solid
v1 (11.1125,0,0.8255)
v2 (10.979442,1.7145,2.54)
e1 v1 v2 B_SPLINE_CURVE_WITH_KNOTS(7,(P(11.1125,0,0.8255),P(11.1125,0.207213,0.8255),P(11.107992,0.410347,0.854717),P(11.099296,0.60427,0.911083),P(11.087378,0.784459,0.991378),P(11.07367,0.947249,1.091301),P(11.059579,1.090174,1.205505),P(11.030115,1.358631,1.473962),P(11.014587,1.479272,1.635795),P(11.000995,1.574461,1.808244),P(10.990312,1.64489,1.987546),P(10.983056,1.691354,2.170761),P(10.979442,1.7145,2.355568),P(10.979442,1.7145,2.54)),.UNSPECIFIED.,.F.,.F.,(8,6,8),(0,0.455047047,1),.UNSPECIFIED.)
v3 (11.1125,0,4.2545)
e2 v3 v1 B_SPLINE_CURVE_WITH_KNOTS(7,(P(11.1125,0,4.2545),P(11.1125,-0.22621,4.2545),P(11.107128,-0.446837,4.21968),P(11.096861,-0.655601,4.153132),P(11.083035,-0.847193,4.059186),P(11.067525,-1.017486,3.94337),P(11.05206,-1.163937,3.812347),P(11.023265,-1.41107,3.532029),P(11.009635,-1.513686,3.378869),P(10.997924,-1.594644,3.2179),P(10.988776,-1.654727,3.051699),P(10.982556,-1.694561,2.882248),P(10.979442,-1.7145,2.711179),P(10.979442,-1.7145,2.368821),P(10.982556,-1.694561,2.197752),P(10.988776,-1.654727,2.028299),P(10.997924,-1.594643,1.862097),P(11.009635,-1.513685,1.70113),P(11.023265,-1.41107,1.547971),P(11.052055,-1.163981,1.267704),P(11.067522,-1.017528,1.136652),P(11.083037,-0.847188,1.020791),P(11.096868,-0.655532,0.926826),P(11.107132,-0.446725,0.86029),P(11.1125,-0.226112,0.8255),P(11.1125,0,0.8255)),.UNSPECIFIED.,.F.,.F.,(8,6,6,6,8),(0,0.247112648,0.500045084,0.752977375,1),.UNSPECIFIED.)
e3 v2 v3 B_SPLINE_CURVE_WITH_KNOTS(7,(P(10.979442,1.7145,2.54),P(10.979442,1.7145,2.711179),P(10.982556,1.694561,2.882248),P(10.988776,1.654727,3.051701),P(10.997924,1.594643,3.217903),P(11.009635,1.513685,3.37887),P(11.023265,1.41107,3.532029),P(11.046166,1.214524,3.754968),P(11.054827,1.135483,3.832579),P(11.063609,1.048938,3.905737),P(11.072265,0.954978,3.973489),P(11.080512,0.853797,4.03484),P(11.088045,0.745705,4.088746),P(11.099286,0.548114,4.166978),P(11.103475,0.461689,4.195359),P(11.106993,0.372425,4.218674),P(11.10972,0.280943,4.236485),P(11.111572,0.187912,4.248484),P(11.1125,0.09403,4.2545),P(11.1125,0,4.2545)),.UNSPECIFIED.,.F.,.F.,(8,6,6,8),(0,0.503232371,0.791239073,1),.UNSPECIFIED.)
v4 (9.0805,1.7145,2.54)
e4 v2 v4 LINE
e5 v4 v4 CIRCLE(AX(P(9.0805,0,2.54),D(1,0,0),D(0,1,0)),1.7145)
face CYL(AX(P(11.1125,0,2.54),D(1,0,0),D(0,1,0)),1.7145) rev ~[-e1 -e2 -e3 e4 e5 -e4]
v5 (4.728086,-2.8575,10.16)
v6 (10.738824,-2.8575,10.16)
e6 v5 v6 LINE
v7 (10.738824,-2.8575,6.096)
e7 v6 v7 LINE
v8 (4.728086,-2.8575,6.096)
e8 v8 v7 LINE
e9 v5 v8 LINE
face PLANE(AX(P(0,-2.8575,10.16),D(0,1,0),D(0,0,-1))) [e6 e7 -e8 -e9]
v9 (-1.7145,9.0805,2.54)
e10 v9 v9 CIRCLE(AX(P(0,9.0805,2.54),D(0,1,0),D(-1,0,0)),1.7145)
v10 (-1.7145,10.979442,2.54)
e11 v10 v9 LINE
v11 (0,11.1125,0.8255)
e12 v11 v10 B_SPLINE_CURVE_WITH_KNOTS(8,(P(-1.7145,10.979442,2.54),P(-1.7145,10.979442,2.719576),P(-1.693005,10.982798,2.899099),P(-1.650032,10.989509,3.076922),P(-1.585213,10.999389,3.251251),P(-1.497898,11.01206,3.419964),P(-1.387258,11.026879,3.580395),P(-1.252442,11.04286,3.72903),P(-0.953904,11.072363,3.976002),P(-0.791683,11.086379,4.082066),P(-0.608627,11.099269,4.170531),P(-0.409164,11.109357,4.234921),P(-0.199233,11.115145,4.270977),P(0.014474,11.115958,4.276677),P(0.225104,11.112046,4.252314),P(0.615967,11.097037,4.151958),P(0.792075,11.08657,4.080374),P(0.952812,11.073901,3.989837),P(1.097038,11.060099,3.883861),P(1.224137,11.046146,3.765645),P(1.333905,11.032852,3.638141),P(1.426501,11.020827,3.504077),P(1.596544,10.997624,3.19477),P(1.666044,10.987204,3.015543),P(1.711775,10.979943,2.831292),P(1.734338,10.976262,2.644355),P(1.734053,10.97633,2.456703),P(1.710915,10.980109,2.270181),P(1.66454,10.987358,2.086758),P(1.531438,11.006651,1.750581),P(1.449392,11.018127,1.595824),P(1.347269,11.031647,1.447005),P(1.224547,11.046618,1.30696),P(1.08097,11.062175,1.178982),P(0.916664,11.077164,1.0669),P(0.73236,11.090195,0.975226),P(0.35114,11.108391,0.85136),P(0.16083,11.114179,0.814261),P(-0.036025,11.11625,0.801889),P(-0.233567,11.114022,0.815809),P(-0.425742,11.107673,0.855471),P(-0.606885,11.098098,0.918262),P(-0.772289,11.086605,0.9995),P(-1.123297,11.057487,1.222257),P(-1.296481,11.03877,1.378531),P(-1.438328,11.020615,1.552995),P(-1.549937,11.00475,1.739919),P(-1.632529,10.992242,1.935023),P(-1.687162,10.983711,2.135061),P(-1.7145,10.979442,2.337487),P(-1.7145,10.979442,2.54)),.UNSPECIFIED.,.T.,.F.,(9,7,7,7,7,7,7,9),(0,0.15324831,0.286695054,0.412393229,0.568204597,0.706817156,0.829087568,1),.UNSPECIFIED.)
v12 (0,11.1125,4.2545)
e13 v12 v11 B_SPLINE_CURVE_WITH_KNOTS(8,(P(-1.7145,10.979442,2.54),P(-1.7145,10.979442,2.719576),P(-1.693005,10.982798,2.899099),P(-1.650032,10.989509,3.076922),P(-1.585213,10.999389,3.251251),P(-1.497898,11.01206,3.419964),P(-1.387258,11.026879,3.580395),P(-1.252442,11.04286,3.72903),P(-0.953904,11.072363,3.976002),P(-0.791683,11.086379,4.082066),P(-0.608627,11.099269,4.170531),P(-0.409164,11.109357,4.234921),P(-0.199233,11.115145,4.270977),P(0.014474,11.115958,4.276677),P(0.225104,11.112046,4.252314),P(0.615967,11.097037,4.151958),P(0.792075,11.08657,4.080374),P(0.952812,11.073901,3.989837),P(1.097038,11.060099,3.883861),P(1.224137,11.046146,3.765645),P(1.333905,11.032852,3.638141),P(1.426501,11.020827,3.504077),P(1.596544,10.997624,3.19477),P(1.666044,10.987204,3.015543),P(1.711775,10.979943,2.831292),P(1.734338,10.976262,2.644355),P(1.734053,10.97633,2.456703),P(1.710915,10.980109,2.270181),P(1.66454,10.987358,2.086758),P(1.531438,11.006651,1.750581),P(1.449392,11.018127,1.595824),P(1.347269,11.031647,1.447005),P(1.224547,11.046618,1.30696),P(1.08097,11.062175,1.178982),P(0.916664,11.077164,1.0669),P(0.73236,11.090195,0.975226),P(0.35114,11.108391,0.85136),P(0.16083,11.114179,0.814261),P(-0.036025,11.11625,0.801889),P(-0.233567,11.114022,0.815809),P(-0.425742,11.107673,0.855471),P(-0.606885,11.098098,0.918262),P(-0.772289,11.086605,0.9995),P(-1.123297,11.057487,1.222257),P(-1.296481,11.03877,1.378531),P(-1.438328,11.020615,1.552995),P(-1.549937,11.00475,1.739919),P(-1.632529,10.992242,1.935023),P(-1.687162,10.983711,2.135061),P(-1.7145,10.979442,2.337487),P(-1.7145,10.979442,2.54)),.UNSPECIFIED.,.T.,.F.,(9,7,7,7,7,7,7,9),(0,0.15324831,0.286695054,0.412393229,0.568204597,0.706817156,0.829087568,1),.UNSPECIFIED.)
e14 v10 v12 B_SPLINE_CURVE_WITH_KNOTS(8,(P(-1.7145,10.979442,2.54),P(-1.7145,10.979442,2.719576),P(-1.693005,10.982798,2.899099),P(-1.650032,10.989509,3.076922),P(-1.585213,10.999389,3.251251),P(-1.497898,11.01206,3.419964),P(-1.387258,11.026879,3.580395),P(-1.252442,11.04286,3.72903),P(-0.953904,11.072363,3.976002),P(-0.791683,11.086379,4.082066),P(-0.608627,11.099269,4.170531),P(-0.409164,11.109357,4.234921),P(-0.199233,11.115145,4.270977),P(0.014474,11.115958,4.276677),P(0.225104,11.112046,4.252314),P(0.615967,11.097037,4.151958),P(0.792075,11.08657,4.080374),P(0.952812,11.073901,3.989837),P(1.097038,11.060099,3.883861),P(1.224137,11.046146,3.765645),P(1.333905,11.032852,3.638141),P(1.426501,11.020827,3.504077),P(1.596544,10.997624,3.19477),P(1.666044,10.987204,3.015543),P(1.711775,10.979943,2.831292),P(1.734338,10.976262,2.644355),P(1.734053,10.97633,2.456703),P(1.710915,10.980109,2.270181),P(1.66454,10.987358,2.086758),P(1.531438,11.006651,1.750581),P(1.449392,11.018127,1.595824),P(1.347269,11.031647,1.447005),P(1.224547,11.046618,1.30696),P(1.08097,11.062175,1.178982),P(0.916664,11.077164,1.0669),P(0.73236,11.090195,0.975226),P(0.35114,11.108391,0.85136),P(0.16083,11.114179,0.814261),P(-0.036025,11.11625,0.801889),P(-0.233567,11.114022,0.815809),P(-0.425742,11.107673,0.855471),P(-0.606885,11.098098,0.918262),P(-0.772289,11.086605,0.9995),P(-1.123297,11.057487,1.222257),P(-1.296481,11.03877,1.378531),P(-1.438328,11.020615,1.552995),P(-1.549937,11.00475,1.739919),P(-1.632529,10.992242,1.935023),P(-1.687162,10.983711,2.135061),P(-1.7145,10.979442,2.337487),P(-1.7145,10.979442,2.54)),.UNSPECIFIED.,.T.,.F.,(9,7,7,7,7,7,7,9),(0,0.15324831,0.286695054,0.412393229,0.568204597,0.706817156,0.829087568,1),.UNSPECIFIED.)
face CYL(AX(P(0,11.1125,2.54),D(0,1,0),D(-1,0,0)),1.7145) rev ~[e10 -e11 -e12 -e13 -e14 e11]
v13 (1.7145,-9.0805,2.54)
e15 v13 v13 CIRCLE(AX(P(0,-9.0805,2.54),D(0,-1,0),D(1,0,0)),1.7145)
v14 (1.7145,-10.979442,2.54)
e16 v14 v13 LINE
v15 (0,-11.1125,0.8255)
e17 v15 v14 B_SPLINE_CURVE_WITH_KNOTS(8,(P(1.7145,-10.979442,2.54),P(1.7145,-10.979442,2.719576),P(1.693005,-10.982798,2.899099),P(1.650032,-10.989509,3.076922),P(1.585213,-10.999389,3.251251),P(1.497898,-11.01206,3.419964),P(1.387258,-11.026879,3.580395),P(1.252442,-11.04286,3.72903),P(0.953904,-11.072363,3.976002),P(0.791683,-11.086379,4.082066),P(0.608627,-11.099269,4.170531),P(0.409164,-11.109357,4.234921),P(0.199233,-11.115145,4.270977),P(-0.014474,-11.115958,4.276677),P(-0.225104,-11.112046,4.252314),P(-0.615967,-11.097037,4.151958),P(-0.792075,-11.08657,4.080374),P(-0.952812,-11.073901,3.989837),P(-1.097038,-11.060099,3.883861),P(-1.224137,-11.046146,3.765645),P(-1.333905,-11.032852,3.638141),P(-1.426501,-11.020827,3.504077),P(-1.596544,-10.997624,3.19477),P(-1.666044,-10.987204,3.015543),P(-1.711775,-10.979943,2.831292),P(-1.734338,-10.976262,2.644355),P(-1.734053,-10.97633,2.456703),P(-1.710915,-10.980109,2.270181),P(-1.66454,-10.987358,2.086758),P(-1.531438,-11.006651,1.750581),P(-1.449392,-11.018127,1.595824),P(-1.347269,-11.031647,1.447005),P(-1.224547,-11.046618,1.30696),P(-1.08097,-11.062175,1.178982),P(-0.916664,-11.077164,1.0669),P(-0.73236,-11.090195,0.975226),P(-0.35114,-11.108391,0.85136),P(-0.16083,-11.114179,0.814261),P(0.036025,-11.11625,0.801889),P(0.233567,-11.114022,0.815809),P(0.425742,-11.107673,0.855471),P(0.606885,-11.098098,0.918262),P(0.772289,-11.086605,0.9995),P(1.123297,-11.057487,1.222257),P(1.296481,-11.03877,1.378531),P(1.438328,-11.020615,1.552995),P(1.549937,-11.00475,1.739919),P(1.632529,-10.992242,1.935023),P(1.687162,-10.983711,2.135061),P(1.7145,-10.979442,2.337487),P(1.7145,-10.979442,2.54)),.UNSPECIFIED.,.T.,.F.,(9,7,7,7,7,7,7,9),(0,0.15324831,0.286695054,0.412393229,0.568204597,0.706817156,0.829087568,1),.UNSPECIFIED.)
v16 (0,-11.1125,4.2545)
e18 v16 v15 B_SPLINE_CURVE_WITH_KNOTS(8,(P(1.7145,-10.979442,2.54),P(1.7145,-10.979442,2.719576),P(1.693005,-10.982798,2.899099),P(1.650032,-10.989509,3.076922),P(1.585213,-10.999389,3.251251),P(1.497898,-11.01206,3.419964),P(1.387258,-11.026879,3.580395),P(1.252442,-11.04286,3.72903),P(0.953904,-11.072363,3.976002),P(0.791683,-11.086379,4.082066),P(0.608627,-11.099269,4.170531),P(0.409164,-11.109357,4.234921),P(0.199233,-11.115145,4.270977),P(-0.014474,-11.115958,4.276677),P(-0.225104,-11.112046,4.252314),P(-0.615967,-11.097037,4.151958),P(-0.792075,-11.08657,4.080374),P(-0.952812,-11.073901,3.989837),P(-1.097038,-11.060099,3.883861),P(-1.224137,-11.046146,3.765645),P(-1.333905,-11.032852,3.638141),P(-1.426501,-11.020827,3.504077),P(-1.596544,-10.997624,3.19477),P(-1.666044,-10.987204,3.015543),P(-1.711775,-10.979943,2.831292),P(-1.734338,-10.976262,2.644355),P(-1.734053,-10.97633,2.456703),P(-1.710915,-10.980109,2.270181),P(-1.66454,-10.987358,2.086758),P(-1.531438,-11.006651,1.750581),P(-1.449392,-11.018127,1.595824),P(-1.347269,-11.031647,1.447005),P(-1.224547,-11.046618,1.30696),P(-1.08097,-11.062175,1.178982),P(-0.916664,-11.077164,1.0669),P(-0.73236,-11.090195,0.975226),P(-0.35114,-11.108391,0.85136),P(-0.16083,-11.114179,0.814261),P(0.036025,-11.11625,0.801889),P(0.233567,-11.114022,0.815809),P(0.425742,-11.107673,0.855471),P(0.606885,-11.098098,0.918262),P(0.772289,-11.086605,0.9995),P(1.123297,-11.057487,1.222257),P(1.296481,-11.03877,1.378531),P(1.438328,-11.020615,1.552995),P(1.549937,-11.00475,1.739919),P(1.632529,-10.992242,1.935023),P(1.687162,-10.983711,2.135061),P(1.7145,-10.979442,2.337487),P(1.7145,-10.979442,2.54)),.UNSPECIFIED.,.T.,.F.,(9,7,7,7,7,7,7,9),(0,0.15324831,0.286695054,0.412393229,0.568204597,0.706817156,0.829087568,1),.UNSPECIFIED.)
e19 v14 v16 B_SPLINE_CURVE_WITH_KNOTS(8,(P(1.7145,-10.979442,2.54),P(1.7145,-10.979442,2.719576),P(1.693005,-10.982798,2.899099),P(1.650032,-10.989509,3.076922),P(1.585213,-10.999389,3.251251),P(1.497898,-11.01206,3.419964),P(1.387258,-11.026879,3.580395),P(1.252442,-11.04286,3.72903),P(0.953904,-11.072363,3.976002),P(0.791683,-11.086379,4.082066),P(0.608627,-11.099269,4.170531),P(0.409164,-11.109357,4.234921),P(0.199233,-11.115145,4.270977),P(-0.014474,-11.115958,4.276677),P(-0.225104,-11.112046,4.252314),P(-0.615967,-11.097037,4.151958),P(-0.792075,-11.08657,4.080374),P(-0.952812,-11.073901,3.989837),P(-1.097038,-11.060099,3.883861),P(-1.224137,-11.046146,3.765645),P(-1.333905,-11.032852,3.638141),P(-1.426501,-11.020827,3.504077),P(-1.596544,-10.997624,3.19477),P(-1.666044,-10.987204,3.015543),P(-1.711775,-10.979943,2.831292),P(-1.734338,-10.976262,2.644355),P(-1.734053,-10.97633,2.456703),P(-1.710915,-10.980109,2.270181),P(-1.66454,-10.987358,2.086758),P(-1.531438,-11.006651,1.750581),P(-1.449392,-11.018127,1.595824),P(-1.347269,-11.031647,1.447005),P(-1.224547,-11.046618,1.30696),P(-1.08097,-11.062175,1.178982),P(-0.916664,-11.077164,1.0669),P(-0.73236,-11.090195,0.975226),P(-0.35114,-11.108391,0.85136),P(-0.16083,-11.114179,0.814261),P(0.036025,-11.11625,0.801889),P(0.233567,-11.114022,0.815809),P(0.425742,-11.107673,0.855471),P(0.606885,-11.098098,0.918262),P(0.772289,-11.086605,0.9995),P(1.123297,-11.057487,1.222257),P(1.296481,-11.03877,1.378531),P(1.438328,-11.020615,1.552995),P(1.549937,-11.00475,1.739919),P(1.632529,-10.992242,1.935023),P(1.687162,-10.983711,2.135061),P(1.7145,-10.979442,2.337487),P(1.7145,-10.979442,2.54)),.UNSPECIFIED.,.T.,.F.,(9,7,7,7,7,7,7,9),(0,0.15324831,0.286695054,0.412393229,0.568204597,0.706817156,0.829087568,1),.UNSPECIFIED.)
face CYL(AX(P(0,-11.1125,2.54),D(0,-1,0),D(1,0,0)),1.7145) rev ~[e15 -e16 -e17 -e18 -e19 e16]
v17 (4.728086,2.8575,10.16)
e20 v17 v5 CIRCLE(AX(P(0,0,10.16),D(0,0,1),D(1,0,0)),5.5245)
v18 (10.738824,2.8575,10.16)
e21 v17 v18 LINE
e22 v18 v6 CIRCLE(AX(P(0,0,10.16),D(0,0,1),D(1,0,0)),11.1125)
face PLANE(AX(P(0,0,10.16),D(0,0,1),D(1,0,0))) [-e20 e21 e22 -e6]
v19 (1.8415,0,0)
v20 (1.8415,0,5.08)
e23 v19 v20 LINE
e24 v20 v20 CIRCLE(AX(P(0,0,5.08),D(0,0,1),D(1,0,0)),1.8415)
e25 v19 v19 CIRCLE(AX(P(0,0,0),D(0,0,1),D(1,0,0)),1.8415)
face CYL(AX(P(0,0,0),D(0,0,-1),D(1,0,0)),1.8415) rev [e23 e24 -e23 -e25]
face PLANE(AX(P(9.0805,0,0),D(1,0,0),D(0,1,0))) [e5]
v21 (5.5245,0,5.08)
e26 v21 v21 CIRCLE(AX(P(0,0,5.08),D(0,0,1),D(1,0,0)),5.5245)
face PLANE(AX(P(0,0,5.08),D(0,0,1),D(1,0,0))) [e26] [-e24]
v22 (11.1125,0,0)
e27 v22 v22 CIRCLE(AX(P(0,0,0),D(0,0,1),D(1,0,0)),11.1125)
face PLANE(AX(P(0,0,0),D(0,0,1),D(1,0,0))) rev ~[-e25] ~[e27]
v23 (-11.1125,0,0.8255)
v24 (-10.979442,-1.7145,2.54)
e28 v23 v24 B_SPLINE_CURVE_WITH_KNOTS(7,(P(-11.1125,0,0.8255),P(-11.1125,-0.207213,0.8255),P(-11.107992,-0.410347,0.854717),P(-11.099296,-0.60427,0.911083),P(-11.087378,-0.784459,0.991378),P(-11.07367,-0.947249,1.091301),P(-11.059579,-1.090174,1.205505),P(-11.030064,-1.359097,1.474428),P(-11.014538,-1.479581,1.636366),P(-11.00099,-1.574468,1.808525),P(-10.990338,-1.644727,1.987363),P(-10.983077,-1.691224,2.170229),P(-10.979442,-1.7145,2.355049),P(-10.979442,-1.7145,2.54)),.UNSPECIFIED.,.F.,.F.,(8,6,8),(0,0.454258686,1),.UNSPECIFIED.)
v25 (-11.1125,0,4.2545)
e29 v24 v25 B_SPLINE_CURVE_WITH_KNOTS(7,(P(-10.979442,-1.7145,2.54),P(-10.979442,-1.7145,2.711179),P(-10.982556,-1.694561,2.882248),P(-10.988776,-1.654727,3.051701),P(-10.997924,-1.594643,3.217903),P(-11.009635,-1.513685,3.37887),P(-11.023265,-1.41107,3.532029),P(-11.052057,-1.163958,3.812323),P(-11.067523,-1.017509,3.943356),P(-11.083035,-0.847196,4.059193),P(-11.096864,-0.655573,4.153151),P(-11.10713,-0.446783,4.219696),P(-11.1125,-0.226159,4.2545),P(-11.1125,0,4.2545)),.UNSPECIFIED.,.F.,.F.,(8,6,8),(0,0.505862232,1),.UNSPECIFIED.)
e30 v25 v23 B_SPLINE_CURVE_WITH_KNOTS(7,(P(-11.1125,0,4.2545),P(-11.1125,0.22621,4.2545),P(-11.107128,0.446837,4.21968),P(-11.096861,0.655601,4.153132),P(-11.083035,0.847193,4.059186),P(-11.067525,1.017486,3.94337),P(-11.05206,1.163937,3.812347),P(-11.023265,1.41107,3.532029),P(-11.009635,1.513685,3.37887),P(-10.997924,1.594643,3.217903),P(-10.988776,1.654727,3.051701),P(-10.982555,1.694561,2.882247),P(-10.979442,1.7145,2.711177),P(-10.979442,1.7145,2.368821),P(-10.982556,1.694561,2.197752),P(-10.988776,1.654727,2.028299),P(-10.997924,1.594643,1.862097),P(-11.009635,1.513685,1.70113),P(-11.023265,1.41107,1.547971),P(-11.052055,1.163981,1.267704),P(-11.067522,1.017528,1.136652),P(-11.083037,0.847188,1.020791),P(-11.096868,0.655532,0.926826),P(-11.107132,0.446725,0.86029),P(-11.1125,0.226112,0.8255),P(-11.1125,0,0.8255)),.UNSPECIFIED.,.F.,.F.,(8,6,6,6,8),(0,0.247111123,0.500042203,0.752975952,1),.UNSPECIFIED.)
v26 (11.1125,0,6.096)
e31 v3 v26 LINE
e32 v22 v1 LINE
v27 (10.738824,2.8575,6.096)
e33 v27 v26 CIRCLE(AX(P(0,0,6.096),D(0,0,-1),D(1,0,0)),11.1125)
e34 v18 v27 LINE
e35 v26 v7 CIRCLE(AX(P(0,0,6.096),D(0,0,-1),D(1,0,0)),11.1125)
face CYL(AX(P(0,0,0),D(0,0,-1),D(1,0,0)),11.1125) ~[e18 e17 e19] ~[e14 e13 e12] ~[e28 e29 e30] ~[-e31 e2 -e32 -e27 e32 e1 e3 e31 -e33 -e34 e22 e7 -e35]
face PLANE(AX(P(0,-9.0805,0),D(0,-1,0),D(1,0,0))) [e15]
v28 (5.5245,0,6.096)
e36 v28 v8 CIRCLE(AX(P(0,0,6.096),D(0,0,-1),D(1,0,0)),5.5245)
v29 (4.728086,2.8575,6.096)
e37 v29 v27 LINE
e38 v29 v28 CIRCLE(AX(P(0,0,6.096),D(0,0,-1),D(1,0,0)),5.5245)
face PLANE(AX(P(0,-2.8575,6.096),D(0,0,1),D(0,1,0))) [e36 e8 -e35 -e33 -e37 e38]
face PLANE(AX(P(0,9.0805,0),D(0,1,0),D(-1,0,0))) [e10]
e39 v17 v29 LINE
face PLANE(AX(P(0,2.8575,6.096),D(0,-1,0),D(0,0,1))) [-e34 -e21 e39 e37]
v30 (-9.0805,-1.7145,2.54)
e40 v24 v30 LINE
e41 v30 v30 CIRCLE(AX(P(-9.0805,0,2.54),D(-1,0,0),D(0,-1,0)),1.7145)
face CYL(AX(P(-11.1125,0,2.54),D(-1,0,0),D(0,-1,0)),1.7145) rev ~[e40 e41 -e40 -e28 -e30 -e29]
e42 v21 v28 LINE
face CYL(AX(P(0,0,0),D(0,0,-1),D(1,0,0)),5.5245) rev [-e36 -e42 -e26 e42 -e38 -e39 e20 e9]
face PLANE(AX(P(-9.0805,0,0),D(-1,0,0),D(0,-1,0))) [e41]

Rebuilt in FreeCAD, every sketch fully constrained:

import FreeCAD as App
import Part
import Sketcher
Q = App.Units.Quantity


def add_polygon(sketch, points):
    """Adds a closed chain of lines whose ends are joined by coincident constraints."""
    first, n = sketch.GeometryCount, len(points)
    for a, b in zip(points, points[1:] + points[:1]):
        sketch.addGeometry(Part.LineSegment(App.Vector(*a, 0), App.Vector(*b, 0)), False)
    for i in range(n):
        sketch.addConstraint(Sketcher.Constraint("Coincident", first + i, 2, first + (i + 1) % n, 1))

doc = App.newDocument("Part")
body = doc.addObject("PartDesign::Body", "Body")

# Sketch on XY plane
sketch1 = body.newObject("Sketcher::SketchObject", "Sketch")
sketch1.AttachmentSupport = (doc.getObject("XY_Plane"), [""])
sketch1.MapMode = "FlatFace"
sketch1.addGeometry([
    Part.Circle(App.Vector(0, 0, 0), App.Vector(0, 0, 1), 11),
    Part.Circle(App.Vector(0, 0, 0), App.Vector(0, 0, 1), 6),
], False)
sketch1.addConstraint([
    Sketcher.Constraint("Coincident", 0, 3, -1, 1),
    Sketcher.Constraint("Coincident", 1, 3, -1, 1),
    Sketcher.Constraint("Diameter", 0, Q("0.875 in")),
    Sketcher.Constraint("Diameter", 1, Q("0.435 in")),
])
pad1 = body.newObject("PartDesign::Pad", "Pad")
pad1.Profile = sketch1
pad1.Length = Q("0.4 in")

# Sketch on XY plane
sketch2 = body.newObject("Sketcher::SketchObject", "Sketch001")
sketch2.AttachmentSupport = (doc.getObject("XY_Plane"), [""])
sketch2.MapMode = "FlatFace"
sketch2.addGeometry([
    Part.Circle(App.Vector(0, 0, 0), App.Vector(0, 0, 1), 5.5),
    Part.Circle(App.Vector(0, 0, 0), App.Vector(0, 0, 1), 1.8),
], False)
sketch2.addConstraint([
    Sketcher.Constraint("Coincident", 0, 3, -1, 1),
    Sketcher.Constraint("Coincident", 1, 3, -1, 1),
    Sketcher.Constraint("Diameter", 0, Q("0.435 in")),
    Sketcher.Constraint("Diameter", 1, Q("0.145 in")),
])
pad2 = body.newObject("PartDesign::Pad", "Pad001")
pad2.Profile = sketch2
pad2.Length = Q("0.2 in")

# Sketch on YZ plane
sketch3 = body.newObject("Sketcher::SketchObject", "Sketch002")
sketch3.AttachmentSupport = (doc.getObject("YZ_Plane"), [""])
sketch3.MapMode = "FlatFace"
add_polygon(sketch3, [(2.9, 6.1), (2.9, 10.2), (-2.9, 10.2), (-2.9, 6.1)])  # lines 0-3
sketch3.addConstraint([
    Sketcher.Constraint("Vertical", 0),
    Sketcher.Constraint("Horizontal", 1),
    Sketcher.Constraint("Vertical", 2),
    Sketcher.Constraint("Horizontal", 3),
    Sketcher.Constraint("DistanceY", 0, 1, 0, 2, Q("0.16 in")),
    Sketcher.Constraint("DistanceX", 1, 2, 1, 1, Q("0.225 in")),
    Sketcher.Constraint("DistanceX", -1, 1, 0, 2, Q("0.1125 in")),
    Sketcher.Constraint("DistanceY", -1, 1, 0, 2, Q("0.4 in")),
])
pocket1 = body.newObject("PartDesign::Pocket", "Pocket")
pocket1.Profile = sketch3
pocket1.Type = "ThroughAll"
pocket1.Reversed = True

# Sketch on XZ plane
sketch4 = body.newObject("Sketcher::SketchObject", "Sketch003")
sketch4.AttachmentSupport = (doc.getObject("XZ_Plane"), [""])
sketch4.MapMode = "FlatFace"
sketch4.AttachmentOffset = App.Placement(App.Vector(0, 0, -0.4375 * 25.4), App.Rotation())
sketch4.addGeometry(Part.Circle(App.Vector(0, 2.5, 0), App.Vector(0, 0, 1), 1.7), False)
sketch4.addConstraint([
    Sketcher.Constraint("PointOnObject", 0, 3, -2),
    Sketcher.Constraint("Diameter", 0, Q("0.135 in")),
    Sketcher.Constraint("DistanceY", -1, 1, 0, 3, Q("0.1 in")),
])
pocket2 = body.newObject("PartDesign::Pocket", "Pocket001")
pocket2.Profile = sketch4
pocket2.Length = Q("0.08 in")
pocket2.Reversed = True
doc.recompute()

polarpattern = body.newObject("PartDesign::PolarPattern", "PolarPattern")
polarpattern.Originals = [pocket2]
polarpattern.Axis = (doc.getObject("Z_Axis"), [""])
polarpattern.Angle = 360
polarpattern.Occurrences = 4
body.Tip = polarpattern

doc.recompute()
